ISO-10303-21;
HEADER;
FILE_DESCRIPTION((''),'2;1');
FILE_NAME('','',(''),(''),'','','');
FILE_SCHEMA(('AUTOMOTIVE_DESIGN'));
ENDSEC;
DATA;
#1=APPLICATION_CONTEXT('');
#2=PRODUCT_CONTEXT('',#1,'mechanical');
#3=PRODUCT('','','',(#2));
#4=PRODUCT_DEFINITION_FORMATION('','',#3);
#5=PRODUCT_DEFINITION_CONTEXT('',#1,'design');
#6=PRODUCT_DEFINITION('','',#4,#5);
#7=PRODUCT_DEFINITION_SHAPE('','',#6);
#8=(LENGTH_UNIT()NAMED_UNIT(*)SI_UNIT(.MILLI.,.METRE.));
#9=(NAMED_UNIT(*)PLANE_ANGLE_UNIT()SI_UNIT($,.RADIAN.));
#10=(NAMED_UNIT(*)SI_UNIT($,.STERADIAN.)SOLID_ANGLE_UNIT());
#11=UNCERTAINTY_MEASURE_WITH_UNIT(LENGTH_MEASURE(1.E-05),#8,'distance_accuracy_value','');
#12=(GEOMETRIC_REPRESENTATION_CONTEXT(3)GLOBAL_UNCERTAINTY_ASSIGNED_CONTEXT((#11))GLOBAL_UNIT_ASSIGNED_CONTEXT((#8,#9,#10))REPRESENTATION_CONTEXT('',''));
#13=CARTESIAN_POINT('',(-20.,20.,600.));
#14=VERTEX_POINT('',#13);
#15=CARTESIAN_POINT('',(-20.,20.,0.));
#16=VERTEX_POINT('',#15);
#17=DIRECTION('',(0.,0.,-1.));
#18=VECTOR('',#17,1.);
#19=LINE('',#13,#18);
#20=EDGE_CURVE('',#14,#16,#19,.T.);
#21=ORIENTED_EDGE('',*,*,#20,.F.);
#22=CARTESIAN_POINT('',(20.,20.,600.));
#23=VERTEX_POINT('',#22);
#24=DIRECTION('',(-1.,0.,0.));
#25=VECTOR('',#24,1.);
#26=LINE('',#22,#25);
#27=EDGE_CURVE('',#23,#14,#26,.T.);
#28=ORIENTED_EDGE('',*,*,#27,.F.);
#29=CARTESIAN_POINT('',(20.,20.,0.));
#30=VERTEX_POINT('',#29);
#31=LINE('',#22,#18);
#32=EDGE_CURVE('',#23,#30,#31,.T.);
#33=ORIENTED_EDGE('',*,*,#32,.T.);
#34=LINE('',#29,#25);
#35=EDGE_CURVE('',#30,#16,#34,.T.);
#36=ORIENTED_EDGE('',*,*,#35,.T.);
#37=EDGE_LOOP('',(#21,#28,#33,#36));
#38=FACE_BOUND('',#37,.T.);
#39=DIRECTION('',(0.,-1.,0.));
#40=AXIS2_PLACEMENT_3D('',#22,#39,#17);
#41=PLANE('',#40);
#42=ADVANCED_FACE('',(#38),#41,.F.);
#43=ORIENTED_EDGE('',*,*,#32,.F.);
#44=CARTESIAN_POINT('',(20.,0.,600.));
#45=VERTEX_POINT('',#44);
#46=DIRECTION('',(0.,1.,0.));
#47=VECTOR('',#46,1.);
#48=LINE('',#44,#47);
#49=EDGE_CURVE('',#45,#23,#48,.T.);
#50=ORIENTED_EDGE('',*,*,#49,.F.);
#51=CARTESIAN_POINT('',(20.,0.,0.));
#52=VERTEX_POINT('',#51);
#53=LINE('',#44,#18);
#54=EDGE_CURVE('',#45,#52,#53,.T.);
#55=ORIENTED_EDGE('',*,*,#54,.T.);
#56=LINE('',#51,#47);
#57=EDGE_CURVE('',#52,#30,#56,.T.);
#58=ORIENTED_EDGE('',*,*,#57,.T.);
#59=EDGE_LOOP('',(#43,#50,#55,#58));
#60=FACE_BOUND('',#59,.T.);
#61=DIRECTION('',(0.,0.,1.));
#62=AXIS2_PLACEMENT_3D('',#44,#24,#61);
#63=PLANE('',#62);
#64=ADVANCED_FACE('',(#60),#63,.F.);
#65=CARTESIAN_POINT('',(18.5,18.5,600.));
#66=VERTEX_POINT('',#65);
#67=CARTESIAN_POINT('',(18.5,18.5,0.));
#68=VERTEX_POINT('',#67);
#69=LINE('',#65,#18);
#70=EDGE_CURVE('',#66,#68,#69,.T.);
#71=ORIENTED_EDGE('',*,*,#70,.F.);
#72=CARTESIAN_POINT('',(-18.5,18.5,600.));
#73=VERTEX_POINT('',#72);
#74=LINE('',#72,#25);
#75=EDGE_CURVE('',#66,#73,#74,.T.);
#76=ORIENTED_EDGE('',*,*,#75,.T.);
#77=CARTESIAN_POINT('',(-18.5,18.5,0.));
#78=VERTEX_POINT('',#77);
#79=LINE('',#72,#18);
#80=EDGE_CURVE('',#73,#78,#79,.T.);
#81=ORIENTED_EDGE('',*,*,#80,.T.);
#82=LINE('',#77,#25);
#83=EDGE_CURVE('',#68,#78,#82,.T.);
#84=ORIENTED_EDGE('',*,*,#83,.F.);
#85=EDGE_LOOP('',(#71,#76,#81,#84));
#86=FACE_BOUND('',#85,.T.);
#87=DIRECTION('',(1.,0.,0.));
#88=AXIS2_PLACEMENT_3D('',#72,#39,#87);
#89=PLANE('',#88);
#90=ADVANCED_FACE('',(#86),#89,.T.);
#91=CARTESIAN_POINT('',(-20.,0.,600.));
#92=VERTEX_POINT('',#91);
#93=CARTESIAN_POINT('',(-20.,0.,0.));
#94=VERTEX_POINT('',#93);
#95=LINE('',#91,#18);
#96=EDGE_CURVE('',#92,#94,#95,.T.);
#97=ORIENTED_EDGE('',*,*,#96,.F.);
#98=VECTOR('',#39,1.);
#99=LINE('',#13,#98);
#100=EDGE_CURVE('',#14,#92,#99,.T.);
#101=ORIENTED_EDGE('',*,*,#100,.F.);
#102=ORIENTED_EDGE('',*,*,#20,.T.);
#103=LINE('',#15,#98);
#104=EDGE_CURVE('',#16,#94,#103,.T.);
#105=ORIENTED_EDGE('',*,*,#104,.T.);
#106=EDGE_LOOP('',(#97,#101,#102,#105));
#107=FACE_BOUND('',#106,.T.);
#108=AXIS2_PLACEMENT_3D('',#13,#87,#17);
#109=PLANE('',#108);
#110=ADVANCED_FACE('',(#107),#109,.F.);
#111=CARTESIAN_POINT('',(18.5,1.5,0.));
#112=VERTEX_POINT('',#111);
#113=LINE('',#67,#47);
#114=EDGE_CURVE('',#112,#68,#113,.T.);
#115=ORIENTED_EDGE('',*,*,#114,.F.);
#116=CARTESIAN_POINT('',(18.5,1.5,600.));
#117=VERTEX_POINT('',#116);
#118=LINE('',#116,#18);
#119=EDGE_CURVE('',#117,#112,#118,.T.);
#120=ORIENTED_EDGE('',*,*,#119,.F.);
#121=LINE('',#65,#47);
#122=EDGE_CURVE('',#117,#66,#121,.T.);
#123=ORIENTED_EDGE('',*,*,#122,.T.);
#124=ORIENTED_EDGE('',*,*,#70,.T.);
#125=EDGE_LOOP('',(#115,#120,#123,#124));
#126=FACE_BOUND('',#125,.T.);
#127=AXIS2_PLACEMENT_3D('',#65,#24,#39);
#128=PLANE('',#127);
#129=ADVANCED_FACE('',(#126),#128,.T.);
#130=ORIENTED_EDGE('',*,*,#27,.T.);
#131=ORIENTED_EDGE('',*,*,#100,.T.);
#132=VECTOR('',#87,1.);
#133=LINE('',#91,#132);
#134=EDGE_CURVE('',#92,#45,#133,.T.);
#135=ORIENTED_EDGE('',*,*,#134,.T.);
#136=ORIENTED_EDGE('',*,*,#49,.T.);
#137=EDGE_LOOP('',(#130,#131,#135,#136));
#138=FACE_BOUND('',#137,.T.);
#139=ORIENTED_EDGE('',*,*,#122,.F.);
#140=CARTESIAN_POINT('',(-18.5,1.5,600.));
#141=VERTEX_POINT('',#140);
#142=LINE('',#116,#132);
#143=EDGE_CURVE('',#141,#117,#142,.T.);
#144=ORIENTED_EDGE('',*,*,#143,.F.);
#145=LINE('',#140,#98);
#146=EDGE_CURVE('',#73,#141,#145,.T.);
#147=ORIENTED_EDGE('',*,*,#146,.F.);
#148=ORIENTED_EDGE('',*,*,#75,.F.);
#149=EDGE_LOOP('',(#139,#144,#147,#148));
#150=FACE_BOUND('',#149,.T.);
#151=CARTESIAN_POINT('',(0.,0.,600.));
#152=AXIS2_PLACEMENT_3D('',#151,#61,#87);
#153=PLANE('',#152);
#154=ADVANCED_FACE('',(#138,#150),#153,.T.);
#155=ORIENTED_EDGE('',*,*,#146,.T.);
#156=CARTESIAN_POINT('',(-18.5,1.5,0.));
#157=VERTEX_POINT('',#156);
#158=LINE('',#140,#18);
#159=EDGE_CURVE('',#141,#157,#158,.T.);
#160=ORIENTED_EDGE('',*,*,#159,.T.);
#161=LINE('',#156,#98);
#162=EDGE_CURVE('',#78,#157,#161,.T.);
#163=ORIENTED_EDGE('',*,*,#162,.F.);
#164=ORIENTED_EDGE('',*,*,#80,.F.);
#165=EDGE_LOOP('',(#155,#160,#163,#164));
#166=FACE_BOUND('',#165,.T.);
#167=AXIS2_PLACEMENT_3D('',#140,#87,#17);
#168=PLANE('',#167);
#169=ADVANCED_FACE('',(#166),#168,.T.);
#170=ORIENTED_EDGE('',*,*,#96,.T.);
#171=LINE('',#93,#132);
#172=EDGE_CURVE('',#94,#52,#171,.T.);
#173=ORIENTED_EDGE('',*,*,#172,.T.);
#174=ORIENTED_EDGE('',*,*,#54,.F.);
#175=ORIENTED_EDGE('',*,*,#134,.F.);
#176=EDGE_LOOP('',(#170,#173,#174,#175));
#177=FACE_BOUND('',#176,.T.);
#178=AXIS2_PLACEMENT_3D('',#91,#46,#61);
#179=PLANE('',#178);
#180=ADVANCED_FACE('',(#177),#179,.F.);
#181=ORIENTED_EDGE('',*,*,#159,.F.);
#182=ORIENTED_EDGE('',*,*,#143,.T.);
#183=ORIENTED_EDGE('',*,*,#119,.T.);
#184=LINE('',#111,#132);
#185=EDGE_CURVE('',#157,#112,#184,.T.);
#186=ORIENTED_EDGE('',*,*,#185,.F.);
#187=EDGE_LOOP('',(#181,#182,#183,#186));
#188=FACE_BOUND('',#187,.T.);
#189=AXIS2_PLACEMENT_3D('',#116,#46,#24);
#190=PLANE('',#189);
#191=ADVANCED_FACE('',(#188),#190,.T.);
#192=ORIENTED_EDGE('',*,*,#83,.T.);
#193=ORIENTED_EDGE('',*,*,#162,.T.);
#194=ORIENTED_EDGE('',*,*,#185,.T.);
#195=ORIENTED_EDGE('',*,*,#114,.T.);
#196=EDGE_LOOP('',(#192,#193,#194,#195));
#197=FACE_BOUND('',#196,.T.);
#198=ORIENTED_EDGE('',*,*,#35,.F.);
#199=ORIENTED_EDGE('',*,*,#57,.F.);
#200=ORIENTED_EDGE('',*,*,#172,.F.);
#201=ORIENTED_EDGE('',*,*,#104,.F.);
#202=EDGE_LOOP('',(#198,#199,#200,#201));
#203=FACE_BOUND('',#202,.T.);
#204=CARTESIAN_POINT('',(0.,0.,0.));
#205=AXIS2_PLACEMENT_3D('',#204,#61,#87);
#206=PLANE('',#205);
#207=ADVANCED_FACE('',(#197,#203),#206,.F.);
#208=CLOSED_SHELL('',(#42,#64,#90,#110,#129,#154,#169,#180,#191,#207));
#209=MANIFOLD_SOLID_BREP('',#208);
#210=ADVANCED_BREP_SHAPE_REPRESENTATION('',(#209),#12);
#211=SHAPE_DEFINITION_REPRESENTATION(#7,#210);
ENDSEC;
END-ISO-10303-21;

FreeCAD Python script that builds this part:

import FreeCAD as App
import Part
import Sketcher

V = App.Vector
Q = App.Units.Quantity

doc = App.newDocument("Part")
body = doc.addObject("PartDesign::Body", "Body")

sketch1 = doc.addObject("Sketcher::SketchObject", "Sketch")
body.addObject(sketch1)
sketch1.AttachmentSupport = (doc.XY_Plane, [""])
sketch1.MapMode = "FlatFace"
sketch1.addGeometry(Part.LineSegment(V(-20, 20, 0), V(-20, 0, 0)), False)
sketch1.addGeometry(Part.LineSegment(V(-20, 0, 0), V(20, 0, 0)), False)
sketch1.addGeometry(Part.LineSegment(V(20, 0, 0), V(20, 20, 0)), False)
sketch1.addGeometry(Part.LineSegment(V(20, 20, 0), V(-20, 20, 0)), False)
sketch1.addGeometry(Part.LineSegment(V(18, 2, 0), V(-18, 2, 0)), False)
sketch1.addGeometry(Part.LineSegment(V(-18, 2, 0), V(-18, 18, 0)), False)
sketch1.addGeometry(Part.LineSegment(V(-18, 18, 0), V(18, 18, 0)), False)
sketch1.addGeometry(Part.LineSegment(V(18, 18, 0), V(18, 2, 0)), False)
sketch1.addConstraint(Sketcher.Constraint("Coincident", 0, 2, 1, 1))
sketch1.addConstraint(Sketcher.Constraint("Coincident", 1, 2, 2, 1))
sketch1.addConstraint(Sketcher.Constraint("Coincident", 2, 2, 3, 1))
sketch1.addConstraint(Sketcher.Constraint("Coincident", 3, 2, 0, 1))
sketch1.addConstraint(Sketcher.Constraint("Coincident", 4, 2, 5, 1))
sketch1.addConstraint(Sketcher.Constraint("Coincident", 5, 2, 6, 1))
sketch1.addConstraint(Sketcher.Constraint("Coincident", 6, 2, 7, 1))
sketch1.addConstraint(Sketcher.Constraint("Coincident", 7, 2, 4, 1))
sketch1.addConstraint(Sketcher.Constraint("Vertical", 0))
sketch1.addConstraint(Sketcher.Constraint("Horizontal", 1))
sketch1.addConstraint(Sketcher.Constraint("Vertical", 2))
sketch1.addConstraint(Sketcher.Constraint("Horizontal", 3))
sketch1.addConstraint(Sketcher.Constraint("Horizontal", 4))
sketch1.addConstraint(Sketcher.Constraint("Vertical", 5))
sketch1.addConstraint(Sketcher.Constraint("Horizontal", 6))
sketch1.addConstraint(Sketcher.Constraint("Vertical", 7))
sketch1.addConstraint(Sketcher.Constraint("Symmetric", 0, 2, 1, 2, -1, 1))
sketch1.addConstraint(Sketcher.Constraint("DistanceX", 1, 1, 1, 2, Q("40 mm")))
sketch1.addConstraint(Sketcher.Constraint("DistanceX", 4, 2, 4, 1, Q("37 mm")))
sketch1.addConstraint(Sketcher.Constraint("DistanceY", 0, 2, 0, 1, Q("20 mm")))
sketch1.addConstraint(Sketcher.Constraint("DistanceY", 5, 1, 5, 2, Q("17 mm")))
sketch1.addConstraint(Sketcher.Constraint("DistanceX", 4, 2, -1, 1, Q("18.5 mm")))
sketch1.addConstraint(Sketcher.Constraint("DistanceY", -1, 1, 4, 2, Q("1.5 mm")))
pad1 = doc.addObject("PartDesign::Pad", "Pad")
body.addObject(pad1)
pad1.Profile = sketch1
pad1.Length = 600

doc.recompute()
